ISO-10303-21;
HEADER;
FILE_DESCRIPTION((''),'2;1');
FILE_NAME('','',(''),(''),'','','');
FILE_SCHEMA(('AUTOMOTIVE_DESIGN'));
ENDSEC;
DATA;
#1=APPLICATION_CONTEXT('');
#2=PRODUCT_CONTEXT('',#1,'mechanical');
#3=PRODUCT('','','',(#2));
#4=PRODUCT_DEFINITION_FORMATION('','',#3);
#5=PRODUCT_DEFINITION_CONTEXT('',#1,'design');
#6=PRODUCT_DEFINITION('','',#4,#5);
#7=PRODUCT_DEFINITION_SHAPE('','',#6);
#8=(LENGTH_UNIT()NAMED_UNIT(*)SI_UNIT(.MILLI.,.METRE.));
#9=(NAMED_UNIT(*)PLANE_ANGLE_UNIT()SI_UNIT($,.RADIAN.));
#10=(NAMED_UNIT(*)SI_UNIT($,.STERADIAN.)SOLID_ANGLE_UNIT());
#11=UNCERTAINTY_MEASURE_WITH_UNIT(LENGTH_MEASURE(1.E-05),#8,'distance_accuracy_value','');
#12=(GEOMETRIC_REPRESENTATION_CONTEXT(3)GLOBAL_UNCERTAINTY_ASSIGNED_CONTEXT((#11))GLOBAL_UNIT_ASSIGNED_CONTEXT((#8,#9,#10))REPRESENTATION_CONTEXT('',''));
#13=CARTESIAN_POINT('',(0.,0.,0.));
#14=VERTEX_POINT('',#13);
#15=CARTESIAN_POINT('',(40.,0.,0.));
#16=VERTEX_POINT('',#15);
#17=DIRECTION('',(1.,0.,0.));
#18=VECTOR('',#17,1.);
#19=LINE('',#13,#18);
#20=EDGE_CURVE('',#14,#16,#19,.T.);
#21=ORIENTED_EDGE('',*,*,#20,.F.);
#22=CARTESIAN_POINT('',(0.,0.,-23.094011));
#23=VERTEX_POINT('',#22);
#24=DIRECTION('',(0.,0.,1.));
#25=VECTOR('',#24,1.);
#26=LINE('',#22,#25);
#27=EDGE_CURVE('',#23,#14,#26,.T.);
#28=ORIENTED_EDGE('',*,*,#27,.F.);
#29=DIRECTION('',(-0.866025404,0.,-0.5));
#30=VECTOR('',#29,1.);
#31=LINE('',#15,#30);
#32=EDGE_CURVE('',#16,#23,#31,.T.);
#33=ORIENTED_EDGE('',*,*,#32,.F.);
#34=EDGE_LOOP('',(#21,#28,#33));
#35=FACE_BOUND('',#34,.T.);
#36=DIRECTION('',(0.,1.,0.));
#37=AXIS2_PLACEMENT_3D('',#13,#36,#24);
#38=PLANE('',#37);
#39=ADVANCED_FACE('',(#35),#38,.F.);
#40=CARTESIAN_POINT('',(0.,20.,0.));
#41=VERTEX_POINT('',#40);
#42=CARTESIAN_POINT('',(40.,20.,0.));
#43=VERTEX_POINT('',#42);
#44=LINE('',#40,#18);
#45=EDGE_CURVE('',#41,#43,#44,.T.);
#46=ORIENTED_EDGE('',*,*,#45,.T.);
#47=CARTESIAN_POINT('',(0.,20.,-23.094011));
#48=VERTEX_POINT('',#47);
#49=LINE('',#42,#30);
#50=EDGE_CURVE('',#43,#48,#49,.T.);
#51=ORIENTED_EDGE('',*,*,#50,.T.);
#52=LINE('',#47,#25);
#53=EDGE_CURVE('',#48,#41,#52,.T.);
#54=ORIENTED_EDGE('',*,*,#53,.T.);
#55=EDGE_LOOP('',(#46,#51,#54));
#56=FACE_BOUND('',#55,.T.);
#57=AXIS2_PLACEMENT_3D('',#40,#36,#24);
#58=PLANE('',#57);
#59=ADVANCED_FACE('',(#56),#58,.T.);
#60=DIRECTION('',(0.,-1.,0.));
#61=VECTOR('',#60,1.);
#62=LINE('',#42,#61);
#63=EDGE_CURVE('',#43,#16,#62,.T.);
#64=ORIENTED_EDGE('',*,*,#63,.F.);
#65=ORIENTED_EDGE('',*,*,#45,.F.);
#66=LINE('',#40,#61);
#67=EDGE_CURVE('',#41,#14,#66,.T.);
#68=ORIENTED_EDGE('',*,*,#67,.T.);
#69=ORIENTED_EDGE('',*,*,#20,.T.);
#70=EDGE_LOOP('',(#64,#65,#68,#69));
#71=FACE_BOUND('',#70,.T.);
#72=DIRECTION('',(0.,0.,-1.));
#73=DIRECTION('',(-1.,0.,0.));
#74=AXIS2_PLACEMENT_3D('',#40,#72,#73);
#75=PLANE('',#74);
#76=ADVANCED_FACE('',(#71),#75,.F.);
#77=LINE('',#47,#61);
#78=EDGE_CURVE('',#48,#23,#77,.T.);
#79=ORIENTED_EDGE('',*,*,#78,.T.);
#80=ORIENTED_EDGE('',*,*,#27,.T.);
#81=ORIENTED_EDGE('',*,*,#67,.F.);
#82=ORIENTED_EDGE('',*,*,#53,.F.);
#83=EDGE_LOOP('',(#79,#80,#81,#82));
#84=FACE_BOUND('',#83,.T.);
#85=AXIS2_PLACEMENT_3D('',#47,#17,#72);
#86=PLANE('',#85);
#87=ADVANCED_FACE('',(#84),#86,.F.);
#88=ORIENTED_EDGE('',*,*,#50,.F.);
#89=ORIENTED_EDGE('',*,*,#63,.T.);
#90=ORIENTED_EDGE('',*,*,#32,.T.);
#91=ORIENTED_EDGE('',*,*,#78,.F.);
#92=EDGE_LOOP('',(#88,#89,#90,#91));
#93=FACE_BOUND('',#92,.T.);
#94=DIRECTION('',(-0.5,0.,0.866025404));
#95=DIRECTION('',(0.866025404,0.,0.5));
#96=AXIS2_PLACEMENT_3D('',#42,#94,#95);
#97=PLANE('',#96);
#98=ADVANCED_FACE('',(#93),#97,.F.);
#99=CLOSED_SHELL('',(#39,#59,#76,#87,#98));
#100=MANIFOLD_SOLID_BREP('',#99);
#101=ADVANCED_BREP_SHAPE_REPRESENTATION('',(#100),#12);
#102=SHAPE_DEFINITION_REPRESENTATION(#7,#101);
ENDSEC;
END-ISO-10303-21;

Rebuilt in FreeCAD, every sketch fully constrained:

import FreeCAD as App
import Part
import Sketcher
Q = App.Units.Quantity


def add_polygon(sketch, points):
    """Adds a closed chain of lines whose ends are joined by coincident constraints."""
    first, n = sketch.GeometryCount, len(points)
    for a, b in zip(points, points[1:] + points[:1]):
        sketch.addGeometry(Part.LineSegment(App.Vector(*a, 0), App.Vector(*b, 0)), False)
    for i in range(n):
        sketch.addConstraint(Sketcher.Constraint("Coincident", first + i, 2, first + (i + 1) % n, 1))

doc = App.newDocument("Part")
body = doc.addObject("PartDesign::Body", "Body")

# Sketch on XZ plane
sketch1 = doc.addObject("Sketcher::SketchObject", "Sketch")
body.addObject(sketch1)
sketch1.AttachmentSupport = (doc.XZ_Plane, [""])
sketch1.MapMode = "FlatFace"
add_polygon(sketch1, [(0, 0), (40, 0), (0, -23.094011)])  # lines 0-2
sketch1.addConstraint(Sketcher.Constraint("Horizontal", 0))
sketch1.addConstraint(Sketcher.Constraint("Vertical", 2))
sketch1.addConstraint(Sketcher.Constraint("Coincident", 2, 2, -1, 1))
sketch1.addConstraint(Sketcher.Constraint("DistanceX", 0, 1, 0, 2, Q("40 mm")))
sketch1.addConstraint(Sketcher.Constraint("Angle", 1, Q("-150 deg")))
pad1 = doc.addObject("PartDesign::Pad", "Pad")
body.addObject(pad1)
pad1.Profile = sketch1
pad1.Length = 20
pad1.Reversed = True

doc.recompute()
